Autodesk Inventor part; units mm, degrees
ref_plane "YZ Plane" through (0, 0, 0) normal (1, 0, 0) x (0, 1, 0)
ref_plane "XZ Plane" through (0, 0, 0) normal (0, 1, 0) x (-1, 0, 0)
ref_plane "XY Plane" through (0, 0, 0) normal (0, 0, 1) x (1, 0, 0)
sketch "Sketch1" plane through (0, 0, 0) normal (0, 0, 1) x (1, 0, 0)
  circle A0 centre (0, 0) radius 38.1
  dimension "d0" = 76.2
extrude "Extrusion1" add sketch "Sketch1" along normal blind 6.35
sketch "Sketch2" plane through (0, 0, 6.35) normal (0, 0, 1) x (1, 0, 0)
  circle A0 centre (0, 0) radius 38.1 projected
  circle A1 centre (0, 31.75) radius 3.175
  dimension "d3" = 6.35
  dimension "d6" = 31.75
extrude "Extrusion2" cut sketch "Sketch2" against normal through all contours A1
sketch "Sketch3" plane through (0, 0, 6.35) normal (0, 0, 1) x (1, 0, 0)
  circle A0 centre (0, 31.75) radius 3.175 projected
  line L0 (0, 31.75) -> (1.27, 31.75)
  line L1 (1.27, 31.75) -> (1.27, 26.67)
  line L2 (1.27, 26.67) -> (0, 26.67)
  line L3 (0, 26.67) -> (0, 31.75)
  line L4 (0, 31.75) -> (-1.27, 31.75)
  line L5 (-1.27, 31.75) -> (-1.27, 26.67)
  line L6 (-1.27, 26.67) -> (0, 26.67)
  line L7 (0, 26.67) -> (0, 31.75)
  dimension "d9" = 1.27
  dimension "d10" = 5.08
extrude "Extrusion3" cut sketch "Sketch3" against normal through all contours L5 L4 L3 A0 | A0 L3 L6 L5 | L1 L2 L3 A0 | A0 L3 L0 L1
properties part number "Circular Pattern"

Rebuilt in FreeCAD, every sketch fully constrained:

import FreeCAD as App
import Part
import Sketcher
from FreeCAD import Vector
Q = App.Units.Quantity

doc = App.newDocument("Part")
params = doc.addObject("Spreadsheet::Sheet", "Params")
for row, (alias, value) in enumerate([
    ("sketch1_diameter", "3 in"),
    ("pad1_length", "0.25 in"),
    ("sketch2_diameter", "0.25 in"),
    ("sketch3_height", "0.2 in"),
], start=1):
    params.set(f"A{row}", alias)
    params.set(f"B{row}", "=" + value)
    params.setAlias(f"B{row}", alias)

body = doc.addObject("PartDesign::Body", "Body")

# Sketch on XY plane
sketch1 = body.newObject("Sketcher::SketchObject", "Sketch")
sketch1.AttachmentSupport = (doc.getObject("XY_Plane"), [""])
sketch1.MapMode = "FlatFace"
sketch1.addGeometry(Part.Circle(Vector(0, 0, 0), Vector(0, 0, 1), 38.1), False)
sketch1.addConstraint(Sketcher.Constraint("Coincident", 0, 3, -1, 1))
sketch1.addConstraint(Sketcher.Constraint("Diameter", 0, Q("3 in")))
sketch1.setExpression("Constraints[1]", "Params.sketch1_diameter")
pad1 = body.newObject("PartDesign::Pad", "Pad")
pad1.Profile = sketch1
pad1.setExpression("Length", "Params.pad1_length")

# Sketch on XY plane
sketch2 = body.newObject("Sketcher::SketchObject", "Sketch001")
sketch2.AttachmentSupport = (doc.getObject("XY_Plane"), [""])
sketch2.MapMode = "FlatFace"
sketch2.AttachmentOffset = App.Placement(Vector(0, 0, 0.25 * 25.4), App.Rotation())
sketch2.addGeometry(Part.Circle(Vector(0, 31.75, 0), Vector(0, 0, 1), 3.175), False)
sketch2.addConstraint(Sketcher.Constraint("PointOnObject", 0, 3, -2))
sketch2.addConstraint(Sketcher.Constraint("Diameter", 0, Q("0.25 in")))
sketch2.addConstraint(Sketcher.Constraint("DistanceY", -1, 1, 0, 3, Q("1.25 in")))
sketch2.setExpression("Constraints[1]", "Params.sketch2_diameter")
pocket1 = body.newObject("PartDesign::Pocket", "Pocket")
pocket1.Profile = sketch2
pocket1.Type = "ThroughAll"

# Sketch on XY plane
sketch3 = body.newObject("Sketcher::SketchObject", "Sketch002")
sketch3.AttachmentSupport = (doc.getObject("XY_Plane"), [""])
sketch3.MapMode = "FlatFace"
sketch3.AttachmentOffset = App.Placement(Vector(0, 0, 0.25 * 25.4), App.Rotation())
sketch3.addGeometry(Part.LineSegment(Vector(-1.27, 31.75, 0), Vector(-1.27, 26.67, 0)), False)
sketch3.addGeometry(Part.LineSegment(Vector(-1.27, 26.67, 0), Vector(1.27, 26.67, 0)), False)
sketch3.addGeometry(Part.LineSegment(Vector(1.27, 26.67, 0), Vector(1.27, 31.75, 0)), False)
sketch3.addGeometry(Part.LineSegment(Vector(1.27, 31.75, 0), Vector(-1.27, 31.75, 0)), False)
sketch3.addConstraint(Sketcher.Constraint("Coincident", 0, 2, 1, 1))
sketch3.addConstraint(Sketcher.Constraint("Coincident", 1, 2, 2, 1))
sketch3.addConstraint(Sketcher.Constraint("Coincident", 2, 2, 3, 1))
sketch3.addConstraint(Sketcher.Constraint("Coincident", 3, 2, 0, 1))
sketch3.addConstraint(Sketcher.Constraint("Vertical", 0))
sketch3.addConstraint(Sketcher.Constraint("Horizontal", 1))
sketch3.addConstraint(Sketcher.Constraint("Vertical", 2))
sketch3.addConstraint(Sketcher.Constraint("Horizontal", 3))
sketch3.addConstraint(Sketcher.Constraint("DistanceY", 0, 2, 0, 1, Q("0.2 in")))
sketch3.addConstraint(Sketcher.Constraint("DistanceX", 0, 2, -1, 1, Q("0.05 in")))
sketch3.addConstraint(Sketcher.Constraint("DistanceX", -1, 1, 1, 2, Q("0.05 in")))
sketch3.addConstraint(Sketcher.Constraint("DistanceY", -1, 1, 0, 2, Q("1.05 in")))
sketch3.setExpression("Constraints[8]", "Params.sketch3_height")
pocket2 = body.newObject("PartDesign::Pocket", "Pocket001")
pocket2.Profile = sketch3
pocket2.Type = "ThroughAll"

doc.recompute()
